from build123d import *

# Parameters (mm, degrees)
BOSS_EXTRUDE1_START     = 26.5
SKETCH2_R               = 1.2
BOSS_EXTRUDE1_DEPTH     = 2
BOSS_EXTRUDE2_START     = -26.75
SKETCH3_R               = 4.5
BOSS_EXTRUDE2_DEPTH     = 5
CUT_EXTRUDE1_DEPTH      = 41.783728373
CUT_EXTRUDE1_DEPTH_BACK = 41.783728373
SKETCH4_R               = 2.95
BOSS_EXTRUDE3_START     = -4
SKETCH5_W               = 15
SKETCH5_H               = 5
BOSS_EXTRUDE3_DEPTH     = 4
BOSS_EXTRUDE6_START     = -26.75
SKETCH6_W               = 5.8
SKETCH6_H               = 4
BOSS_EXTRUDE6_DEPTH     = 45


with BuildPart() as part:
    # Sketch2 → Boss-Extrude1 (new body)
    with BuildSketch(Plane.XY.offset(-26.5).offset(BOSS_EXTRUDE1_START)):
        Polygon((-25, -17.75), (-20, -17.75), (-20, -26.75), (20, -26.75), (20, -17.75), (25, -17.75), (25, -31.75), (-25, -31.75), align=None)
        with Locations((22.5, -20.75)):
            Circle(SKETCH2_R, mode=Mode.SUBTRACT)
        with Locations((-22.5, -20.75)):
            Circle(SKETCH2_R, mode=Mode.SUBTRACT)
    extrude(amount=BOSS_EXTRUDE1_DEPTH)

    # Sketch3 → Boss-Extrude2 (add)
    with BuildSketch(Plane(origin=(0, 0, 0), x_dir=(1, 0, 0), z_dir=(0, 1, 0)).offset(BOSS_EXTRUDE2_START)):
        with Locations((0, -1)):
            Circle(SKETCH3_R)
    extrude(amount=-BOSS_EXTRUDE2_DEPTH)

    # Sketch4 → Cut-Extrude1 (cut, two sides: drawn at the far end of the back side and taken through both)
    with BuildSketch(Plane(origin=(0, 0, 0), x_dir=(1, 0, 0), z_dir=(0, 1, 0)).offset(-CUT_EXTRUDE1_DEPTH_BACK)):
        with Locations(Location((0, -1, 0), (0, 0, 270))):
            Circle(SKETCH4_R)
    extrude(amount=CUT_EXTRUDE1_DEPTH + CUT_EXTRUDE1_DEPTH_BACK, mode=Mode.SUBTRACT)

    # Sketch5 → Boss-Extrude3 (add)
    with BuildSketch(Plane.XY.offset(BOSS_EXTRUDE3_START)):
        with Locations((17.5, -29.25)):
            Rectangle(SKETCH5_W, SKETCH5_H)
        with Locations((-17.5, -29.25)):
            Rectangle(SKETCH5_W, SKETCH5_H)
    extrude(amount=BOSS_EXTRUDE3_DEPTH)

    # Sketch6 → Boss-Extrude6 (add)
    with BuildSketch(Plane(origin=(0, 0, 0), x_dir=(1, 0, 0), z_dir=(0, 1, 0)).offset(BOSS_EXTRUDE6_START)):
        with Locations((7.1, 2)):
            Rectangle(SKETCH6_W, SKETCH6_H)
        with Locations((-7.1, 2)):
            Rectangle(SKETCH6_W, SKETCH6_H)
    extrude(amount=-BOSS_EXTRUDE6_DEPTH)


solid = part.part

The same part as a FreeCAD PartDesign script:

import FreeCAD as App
import Part
import Sketcher

V = App.Vector

doc = App.newDocument("Part")
body = doc.addObject("PartDesign::Body", "Body")

# Sketch on XY plane
sketch1 = doc.addObject("Sketcher::SketchObject", "Sketch")
body.addObject(sketch1)
sketch1.AttachmentSupport = (doc.XY_Plane, [""])
sketch1.MapMode = "FlatFace"
sketch1.addGeometry(Part.LineSegment(V(-20, -17.75, 0), V(-25, -17.75, 0)), False)
sketch1.addGeometry(Part.LineSegment(V(-25, -17.75, 0), V(-25, -31.75, 0)), False)
sketch1.addGeometry(Part.LineSegment(V(-25, -31.75, 0), V(25, -31.75, 0)), False)
sketch1.addGeometry(Part.LineSegment(V(25, -31.75, 0), V(25, -17.75, 0)), False)
sketch1.addGeometry(Part.LineSegment(V(25, -17.75, 0), V(20, -17.75, 0)), False)
sketch1.addGeometry(Part.LineSegment(V(20, -17.75, 0), V(20, -26.75, 0)), False)
sketch1.addGeometry(Part.LineSegment(V(20, -26.75, 0), V(-20, -26.75, 0)), False)
sketch1.addGeometry(Part.LineSegment(V(-20, -26.75, 0), V(-20, -17.75, 0)), False)
sketch1.addGeometry(Part.Circle(V(22.5, -20.75, 0), V(0, 0, 1), 1.2), False)
sketch1.addGeometry(Part.Circle(V(-22.5, -20.75, 0), V(0, 0, 1), 1.2), False)
sketch1.addConstraint(Sketcher.Constraint("Coincident", 0, 2, 1, 1))
sketch1.addConstraint(Sketcher.Constraint("Coincident", 1, 2, 2, 1))
sketch1.addConstraint(Sketcher.Constraint("Coincident", 2, 2, 3, 1))
sketch1.addConstraint(Sketcher.Constraint("Coincident", 3, 2, 4, 1))
sketch1.addConstraint(Sketcher.Constraint("Coincident", 4, 2, 5, 1))
sketch1.addConstraint(Sketcher.Constraint("Coincident", 5, 2, 6, 1))
sketch1.addConstraint(Sketcher.Constraint("Coincident", 6, 2, 7, 1))
sketch1.addConstraint(Sketcher.Constraint("Coincident", 7, 2, 0, 1))
sketch1.addConstraint(Sketcher.Constraint("Horizontal", 0))
sketch1.addConstraint(Sketcher.Constraint("Vertical", 1))
sketch1.addConstraint(Sketcher.Constraint("Horizontal", 2))
sketch1.addConstraint(Sketcher.Constraint("Vertical", 3))
sketch1.addConstraint(Sketcher.Constraint("Horizontal", 4))
sketch1.addConstraint(Sketcher.Constraint("Vertical", 5))
sketch1.addConstraint(Sketcher.Constraint("Horizontal", 6))
sketch1.addConstraint(Sketcher.Constraint("Vertical", 7))
sketch1.addConstraint(Sketcher.Constraint("Equal", 8, 9))
sketch1.addConstraint(Sketcher.Constraint("Symmetric", 8, 3, 9, 3, -2))
sketch1.addConstraint(Sketcher.Constraint("Symmetric", 0, 2, 3, 2, -2))
sketch1.addConstraint(Sketcher.Constraint("Equal", 0, 4))
sketch1.addConstraint(Sketcher.Constraint("Diameter", 8, 2.4))
sketch1.addConstraint(Sketcher.Constraint("DistanceX", 0, 2, 0, 1, 5.0))
sketch1.addConstraint(Sketcher.Constraint("DistanceX", 2, 1, 2, 2, 50.0))
sketch1.addConstraint(Sketcher.Constraint("DistanceY", 1, 2, 1, 1, 14.0))
sketch1.addConstraint(Sketcher.Constraint("DistanceY", 5, 2, 5, 1, 9.0))
sketch1.addConstraint(Sketcher.Constraint("DistanceX", 9, 3, 8, 3, 45.0))
sketch1.addConstraint(Sketcher.Constraint("DistanceY", 9, 3, 0, 2, 3.0))
sketch1.addConstraint(Sketcher.Constraint("DistanceY", 8, 3, -1, 1, 20.75))
pad1 = doc.addObject("PartDesign::Pad", "Pad")
body.addObject(pad1)
pad1.Profile = sketch1
pad1.Length = 2

# Sketch on XZ plane
sketch2 = doc.addObject("Sketcher::SketchObject", "Sketch001")
body.addObject(sketch2)
sketch2.AttachmentSupport = (doc.XZ_Plane, [""])
sketch2.MapMode = "FlatFace"
sketch2.AttachmentOffset = App.Placement(V(0, 0, 26.75), App.Rotation())
sketch2.addGeometry(Part.Circle(V(0, 1, 0), V(0, 0, 1), 4.5), False)
sketch2.addConstraint(Sketcher.Constraint("PointOnObject", 0, 3, -2))
sketch2.addConstraint(Sketcher.Constraint("Diameter", 0, 9.0))
sketch2.addConstraint(Sketcher.Constraint("DistanceY", -1, 1, 0, 3, 1.0))
pad2 = doc.addObject("PartDesign::Pad", "Pad001")
body.addObject(pad2)
pad2.Profile = sketch2
pad2.Length = 5

# Sketch on XZ plane
sketch3 = doc.addObject("Sketcher::SketchObject", "Sketch002")
body.addObject(sketch3)
sketch3.AttachmentSupport = (doc.XZ_Plane, [""])
sketch3.MapMode = "FlatFace"
sketch3.addGeometry(Part.Circle(V(0, 1, 0), V(0, 0, 1), 2.95), False)
sketch3.addConstraint(Sketcher.Constraint("PointOnObject", 0, 3, -2))
sketch3.addConstraint(Sketcher.Constraint("Diameter", 0, 5.9))
sketch3.addConstraint(Sketcher.Constraint("DistanceY", -1, 1, 0, 3, 1.0))
pocket1 = doc.addObject("PartDesign::Pocket", "Pocket")
body.addObject(pocket1)
pocket1.Profile = sketch3
pocket1.Type = "ThroughAll"
pocket1.Midplane = True

# Sketch on XY plane
sketch4 = doc.addObject("Sketcher::SketchObject", "Sketch003")
body.addObject(sketch4)
sketch4.AttachmentSupport = (doc.XY_Plane, [""])
sketch4.MapMode = "FlatFace"
sketch4.AttachmentOffset = App.Placement(V(0, 0, -4), App.Rotation())
sketch4.addGeometry(Part.LineSegment(V(10, -26.75, 0), V(10, -31.75, 0)), False)
sketch4.addGeometry(Part.LineSegment(V(10, -31.75, 0), V(25, -31.75, 0)), False)
sketch4.addGeometry(Part.LineSegment(V(25, -31.75, 0), V(25, -26.75, 0)), False)
sketch4.addGeometry(Part.LineSegment(V(25, -26.75, 0), V(10, -26.75, 0)), False)
sketch4.addGeometry(Part.LineSegment(V(-25, -26.75, 0), V(-25, -31.75, 0)), False)
sketch4.addGeometry(Part.LineSegment(V(-25, -31.75, 0), V(-10, -31.75, 0)), False)
sketch4.addGeometry(Part.LineSegment(V(-10, -31.75, 0), V(-10, -26.75, 0)), False)
sketch4.addGeometry(Part.LineSegment(V(-10, -26.75, 0), V(-25, -26.75, 0)), False)
sketch4.addConstraint(Sketcher.Constraint("Coincident", 0, 2, 1, 1))
sketch4.addConstraint(Sketcher.Constraint("Coincident", 1, 2, 2, 1))
sketch4.addConstraint(Sketcher.Constraint("Coincident", 2, 2, 3, 1))
sketch4.addConstraint(Sketcher.Constraint("Coincident", 3, 2, 0, 1))
sketch4.addConstraint(Sketcher.Constraint("Coincident", 4, 2, 5, 1))
sketch4.addConstraint(Sketcher.Constraint("Coincident", 5, 2, 6, 1))
sketch4.addConstraint(Sketcher.Constraint("Coincident", 6, 2, 7, 1))
sketch4.addConstraint(Sketcher.Constraint("Coincident", 7, 2, 4, 1))
sketch4.addConstraint(Sketcher.Constraint("Vertical", 0))
sketch4.addConstraint(Sketcher.Constraint("Horizontal", 1))
sketch4.addConstraint(Sketcher.Constraint("Vertical", 2))
sketch4.addConstraint(Sketcher.Constraint("Horizontal", 3))
sketch4.addConstraint(Sketcher.Constraint("Vertical", 4))
sketch4.addConstraint(Sketcher.Constraint("Horizontal", 5))
sketch4.addConstraint(Sketcher.Constraint("Vertical", 6))
sketch4.addConstraint(Sketcher.Constraint("Horizontal", 7))
sketch4.addConstraint(Sketcher.Constraint("Symmetric", 1, 2, 4, 2, -2))
sketch4.addConstraint(Sketcher.Constraint("Symmetric", 3, 2, 6, 2, -2))
sketch4.addConstraint(Sketcher.Constraint("DistanceX", 1, 1, 1, 2, 15.0))
sketch4.addConstraint(Sketcher.Constraint("DistanceY", 0, 2, 0, 1, 5.0))
sketch4.addConstraint(Sketcher.Constraint("DistanceX", -1, 1, 0, 2, 10.0))
sketch4.addConstraint(Sketcher.Constraint("DistanceY", 0, 2, -1, 1, 31.75))
pad3 = doc.addObject("PartDesign::Pad", "Pad002")
body.addObject(pad3)
pad3.Profile = sketch4
pad3.Length = 4

# Sketch on XZ plane
sketch5 = doc.addObject("Sketcher::SketchObject", "Sketch004")
body.addObject(sketch5)
sketch5.AttachmentSupport = (doc.XZ_Plane, [""])
sketch5.MapMode = "FlatFace"
sketch5.AttachmentOffset = App.Placement(V(0, 0, 26.75), App.Rotation())
sketch5.addGeometry(Part.LineSegment(V(4.2, -4, 0), V(4.2, 0, 0)), False)
sketch5.addGeometry(Part.LineSegment(V(4.2, 0, 0), V(10, 0, 0)), False)
sketch5.addGeometry(Part.LineSegment(V(10, 0, 0), V(10, -4, 0)), False)
sketch5.addGeometry(Part.LineSegment(V(10, -4, 0), V(4.2, -4, 0)), False)
sketch5.addGeometry(Part.LineSegment(V(-10, -4, 0), V(-10, 0, 0)), False)
sketch5.addGeometry(Part.LineSegment(V(-10, 0, 0), V(-4.2, 0, 0)), False)
sketch5.addGeometry(Part.LineSegment(V(-4.2, 0, 0), V(-4.2, -4, 0)), False)
sketch5.addGeometry(Part.LineSegment(V(-4.2, -4, 0), V(-10, -4, 0)), False)
sketch5.addConstraint(Sketcher.Constraint("Coincident", 0, 2, 1, 1))
sketch5.addConstraint(Sketcher.Constraint("Coincident", 1, 2, 2, 1))
sketch5.addConstraint(Sketcher.Constraint("Coincident", 2, 2, 3, 1))
sketch5.addConstraint(Sketcher.Constraint("Coincident", 3, 2, 0, 1))
sketch5.addConstraint(Sketcher.Constraint("Coincident", 4, 2, 5, 1))
sketch5.addConstraint(Sketcher.Constraint("Coincident", 5, 2, 6, 1))
sketch5.addConstraint(Sketcher.Constraint("Coincident", 6, 2, 7, 1))
sketch5.addConstraint(Sketcher.Constraint("Coincident", 7, 2, 4, 1))
sketch5.addConstraint(Sketcher.Constraint("Vertical", 0))
sketch5.addConstraint(Sketcher.Constraint("Horizontal", 1))
sketch5.addConstraint(Sketcher.Constraint("Vertical", 2))
sketch5.addConstraint(Sketcher.Constraint("Horizontal", 3))
sketch5.addConstraint(Sketcher.Constraint("Vertical", 4))
sketch5.addConstraint(Sketcher.Constraint("Horizontal", 5))
sketch5.addConstraint(Sketcher.Constraint("Vertical", 6))
sketch5.addConstraint(Sketcher.Constraint("Horizontal", 7))
sketch5.addConstraint(Sketcher.Constraint("Symmetric", 1, 2, 4, 2, -1, 1))
sketch5.addConstraint(Sketcher.Constraint("Symmetric", 0, 2, 5, 2, -2))
sketch5.addConstraint(Sketcher.Constraint("Horizontal", 3, 2, 6, 2))
sketch5.addConstraint(Sketcher.Constraint("DistanceY", 0, 1, 0, 2, 4.0))
sketch5.addConstraint(Sketcher.Constraint("DistanceX", 1, 1, 1, 2, 5.8))
sketch5.addConstraint(Sketcher.Constraint("DistanceX", -1, 1, 1, 2, 10.0))
pad4 = doc.addObject("PartDesign::Pad", "Pad003")
body.addObject(pad4)
pad4.Profile = sketch5
pad4.Length = 45

doc.recompute()
